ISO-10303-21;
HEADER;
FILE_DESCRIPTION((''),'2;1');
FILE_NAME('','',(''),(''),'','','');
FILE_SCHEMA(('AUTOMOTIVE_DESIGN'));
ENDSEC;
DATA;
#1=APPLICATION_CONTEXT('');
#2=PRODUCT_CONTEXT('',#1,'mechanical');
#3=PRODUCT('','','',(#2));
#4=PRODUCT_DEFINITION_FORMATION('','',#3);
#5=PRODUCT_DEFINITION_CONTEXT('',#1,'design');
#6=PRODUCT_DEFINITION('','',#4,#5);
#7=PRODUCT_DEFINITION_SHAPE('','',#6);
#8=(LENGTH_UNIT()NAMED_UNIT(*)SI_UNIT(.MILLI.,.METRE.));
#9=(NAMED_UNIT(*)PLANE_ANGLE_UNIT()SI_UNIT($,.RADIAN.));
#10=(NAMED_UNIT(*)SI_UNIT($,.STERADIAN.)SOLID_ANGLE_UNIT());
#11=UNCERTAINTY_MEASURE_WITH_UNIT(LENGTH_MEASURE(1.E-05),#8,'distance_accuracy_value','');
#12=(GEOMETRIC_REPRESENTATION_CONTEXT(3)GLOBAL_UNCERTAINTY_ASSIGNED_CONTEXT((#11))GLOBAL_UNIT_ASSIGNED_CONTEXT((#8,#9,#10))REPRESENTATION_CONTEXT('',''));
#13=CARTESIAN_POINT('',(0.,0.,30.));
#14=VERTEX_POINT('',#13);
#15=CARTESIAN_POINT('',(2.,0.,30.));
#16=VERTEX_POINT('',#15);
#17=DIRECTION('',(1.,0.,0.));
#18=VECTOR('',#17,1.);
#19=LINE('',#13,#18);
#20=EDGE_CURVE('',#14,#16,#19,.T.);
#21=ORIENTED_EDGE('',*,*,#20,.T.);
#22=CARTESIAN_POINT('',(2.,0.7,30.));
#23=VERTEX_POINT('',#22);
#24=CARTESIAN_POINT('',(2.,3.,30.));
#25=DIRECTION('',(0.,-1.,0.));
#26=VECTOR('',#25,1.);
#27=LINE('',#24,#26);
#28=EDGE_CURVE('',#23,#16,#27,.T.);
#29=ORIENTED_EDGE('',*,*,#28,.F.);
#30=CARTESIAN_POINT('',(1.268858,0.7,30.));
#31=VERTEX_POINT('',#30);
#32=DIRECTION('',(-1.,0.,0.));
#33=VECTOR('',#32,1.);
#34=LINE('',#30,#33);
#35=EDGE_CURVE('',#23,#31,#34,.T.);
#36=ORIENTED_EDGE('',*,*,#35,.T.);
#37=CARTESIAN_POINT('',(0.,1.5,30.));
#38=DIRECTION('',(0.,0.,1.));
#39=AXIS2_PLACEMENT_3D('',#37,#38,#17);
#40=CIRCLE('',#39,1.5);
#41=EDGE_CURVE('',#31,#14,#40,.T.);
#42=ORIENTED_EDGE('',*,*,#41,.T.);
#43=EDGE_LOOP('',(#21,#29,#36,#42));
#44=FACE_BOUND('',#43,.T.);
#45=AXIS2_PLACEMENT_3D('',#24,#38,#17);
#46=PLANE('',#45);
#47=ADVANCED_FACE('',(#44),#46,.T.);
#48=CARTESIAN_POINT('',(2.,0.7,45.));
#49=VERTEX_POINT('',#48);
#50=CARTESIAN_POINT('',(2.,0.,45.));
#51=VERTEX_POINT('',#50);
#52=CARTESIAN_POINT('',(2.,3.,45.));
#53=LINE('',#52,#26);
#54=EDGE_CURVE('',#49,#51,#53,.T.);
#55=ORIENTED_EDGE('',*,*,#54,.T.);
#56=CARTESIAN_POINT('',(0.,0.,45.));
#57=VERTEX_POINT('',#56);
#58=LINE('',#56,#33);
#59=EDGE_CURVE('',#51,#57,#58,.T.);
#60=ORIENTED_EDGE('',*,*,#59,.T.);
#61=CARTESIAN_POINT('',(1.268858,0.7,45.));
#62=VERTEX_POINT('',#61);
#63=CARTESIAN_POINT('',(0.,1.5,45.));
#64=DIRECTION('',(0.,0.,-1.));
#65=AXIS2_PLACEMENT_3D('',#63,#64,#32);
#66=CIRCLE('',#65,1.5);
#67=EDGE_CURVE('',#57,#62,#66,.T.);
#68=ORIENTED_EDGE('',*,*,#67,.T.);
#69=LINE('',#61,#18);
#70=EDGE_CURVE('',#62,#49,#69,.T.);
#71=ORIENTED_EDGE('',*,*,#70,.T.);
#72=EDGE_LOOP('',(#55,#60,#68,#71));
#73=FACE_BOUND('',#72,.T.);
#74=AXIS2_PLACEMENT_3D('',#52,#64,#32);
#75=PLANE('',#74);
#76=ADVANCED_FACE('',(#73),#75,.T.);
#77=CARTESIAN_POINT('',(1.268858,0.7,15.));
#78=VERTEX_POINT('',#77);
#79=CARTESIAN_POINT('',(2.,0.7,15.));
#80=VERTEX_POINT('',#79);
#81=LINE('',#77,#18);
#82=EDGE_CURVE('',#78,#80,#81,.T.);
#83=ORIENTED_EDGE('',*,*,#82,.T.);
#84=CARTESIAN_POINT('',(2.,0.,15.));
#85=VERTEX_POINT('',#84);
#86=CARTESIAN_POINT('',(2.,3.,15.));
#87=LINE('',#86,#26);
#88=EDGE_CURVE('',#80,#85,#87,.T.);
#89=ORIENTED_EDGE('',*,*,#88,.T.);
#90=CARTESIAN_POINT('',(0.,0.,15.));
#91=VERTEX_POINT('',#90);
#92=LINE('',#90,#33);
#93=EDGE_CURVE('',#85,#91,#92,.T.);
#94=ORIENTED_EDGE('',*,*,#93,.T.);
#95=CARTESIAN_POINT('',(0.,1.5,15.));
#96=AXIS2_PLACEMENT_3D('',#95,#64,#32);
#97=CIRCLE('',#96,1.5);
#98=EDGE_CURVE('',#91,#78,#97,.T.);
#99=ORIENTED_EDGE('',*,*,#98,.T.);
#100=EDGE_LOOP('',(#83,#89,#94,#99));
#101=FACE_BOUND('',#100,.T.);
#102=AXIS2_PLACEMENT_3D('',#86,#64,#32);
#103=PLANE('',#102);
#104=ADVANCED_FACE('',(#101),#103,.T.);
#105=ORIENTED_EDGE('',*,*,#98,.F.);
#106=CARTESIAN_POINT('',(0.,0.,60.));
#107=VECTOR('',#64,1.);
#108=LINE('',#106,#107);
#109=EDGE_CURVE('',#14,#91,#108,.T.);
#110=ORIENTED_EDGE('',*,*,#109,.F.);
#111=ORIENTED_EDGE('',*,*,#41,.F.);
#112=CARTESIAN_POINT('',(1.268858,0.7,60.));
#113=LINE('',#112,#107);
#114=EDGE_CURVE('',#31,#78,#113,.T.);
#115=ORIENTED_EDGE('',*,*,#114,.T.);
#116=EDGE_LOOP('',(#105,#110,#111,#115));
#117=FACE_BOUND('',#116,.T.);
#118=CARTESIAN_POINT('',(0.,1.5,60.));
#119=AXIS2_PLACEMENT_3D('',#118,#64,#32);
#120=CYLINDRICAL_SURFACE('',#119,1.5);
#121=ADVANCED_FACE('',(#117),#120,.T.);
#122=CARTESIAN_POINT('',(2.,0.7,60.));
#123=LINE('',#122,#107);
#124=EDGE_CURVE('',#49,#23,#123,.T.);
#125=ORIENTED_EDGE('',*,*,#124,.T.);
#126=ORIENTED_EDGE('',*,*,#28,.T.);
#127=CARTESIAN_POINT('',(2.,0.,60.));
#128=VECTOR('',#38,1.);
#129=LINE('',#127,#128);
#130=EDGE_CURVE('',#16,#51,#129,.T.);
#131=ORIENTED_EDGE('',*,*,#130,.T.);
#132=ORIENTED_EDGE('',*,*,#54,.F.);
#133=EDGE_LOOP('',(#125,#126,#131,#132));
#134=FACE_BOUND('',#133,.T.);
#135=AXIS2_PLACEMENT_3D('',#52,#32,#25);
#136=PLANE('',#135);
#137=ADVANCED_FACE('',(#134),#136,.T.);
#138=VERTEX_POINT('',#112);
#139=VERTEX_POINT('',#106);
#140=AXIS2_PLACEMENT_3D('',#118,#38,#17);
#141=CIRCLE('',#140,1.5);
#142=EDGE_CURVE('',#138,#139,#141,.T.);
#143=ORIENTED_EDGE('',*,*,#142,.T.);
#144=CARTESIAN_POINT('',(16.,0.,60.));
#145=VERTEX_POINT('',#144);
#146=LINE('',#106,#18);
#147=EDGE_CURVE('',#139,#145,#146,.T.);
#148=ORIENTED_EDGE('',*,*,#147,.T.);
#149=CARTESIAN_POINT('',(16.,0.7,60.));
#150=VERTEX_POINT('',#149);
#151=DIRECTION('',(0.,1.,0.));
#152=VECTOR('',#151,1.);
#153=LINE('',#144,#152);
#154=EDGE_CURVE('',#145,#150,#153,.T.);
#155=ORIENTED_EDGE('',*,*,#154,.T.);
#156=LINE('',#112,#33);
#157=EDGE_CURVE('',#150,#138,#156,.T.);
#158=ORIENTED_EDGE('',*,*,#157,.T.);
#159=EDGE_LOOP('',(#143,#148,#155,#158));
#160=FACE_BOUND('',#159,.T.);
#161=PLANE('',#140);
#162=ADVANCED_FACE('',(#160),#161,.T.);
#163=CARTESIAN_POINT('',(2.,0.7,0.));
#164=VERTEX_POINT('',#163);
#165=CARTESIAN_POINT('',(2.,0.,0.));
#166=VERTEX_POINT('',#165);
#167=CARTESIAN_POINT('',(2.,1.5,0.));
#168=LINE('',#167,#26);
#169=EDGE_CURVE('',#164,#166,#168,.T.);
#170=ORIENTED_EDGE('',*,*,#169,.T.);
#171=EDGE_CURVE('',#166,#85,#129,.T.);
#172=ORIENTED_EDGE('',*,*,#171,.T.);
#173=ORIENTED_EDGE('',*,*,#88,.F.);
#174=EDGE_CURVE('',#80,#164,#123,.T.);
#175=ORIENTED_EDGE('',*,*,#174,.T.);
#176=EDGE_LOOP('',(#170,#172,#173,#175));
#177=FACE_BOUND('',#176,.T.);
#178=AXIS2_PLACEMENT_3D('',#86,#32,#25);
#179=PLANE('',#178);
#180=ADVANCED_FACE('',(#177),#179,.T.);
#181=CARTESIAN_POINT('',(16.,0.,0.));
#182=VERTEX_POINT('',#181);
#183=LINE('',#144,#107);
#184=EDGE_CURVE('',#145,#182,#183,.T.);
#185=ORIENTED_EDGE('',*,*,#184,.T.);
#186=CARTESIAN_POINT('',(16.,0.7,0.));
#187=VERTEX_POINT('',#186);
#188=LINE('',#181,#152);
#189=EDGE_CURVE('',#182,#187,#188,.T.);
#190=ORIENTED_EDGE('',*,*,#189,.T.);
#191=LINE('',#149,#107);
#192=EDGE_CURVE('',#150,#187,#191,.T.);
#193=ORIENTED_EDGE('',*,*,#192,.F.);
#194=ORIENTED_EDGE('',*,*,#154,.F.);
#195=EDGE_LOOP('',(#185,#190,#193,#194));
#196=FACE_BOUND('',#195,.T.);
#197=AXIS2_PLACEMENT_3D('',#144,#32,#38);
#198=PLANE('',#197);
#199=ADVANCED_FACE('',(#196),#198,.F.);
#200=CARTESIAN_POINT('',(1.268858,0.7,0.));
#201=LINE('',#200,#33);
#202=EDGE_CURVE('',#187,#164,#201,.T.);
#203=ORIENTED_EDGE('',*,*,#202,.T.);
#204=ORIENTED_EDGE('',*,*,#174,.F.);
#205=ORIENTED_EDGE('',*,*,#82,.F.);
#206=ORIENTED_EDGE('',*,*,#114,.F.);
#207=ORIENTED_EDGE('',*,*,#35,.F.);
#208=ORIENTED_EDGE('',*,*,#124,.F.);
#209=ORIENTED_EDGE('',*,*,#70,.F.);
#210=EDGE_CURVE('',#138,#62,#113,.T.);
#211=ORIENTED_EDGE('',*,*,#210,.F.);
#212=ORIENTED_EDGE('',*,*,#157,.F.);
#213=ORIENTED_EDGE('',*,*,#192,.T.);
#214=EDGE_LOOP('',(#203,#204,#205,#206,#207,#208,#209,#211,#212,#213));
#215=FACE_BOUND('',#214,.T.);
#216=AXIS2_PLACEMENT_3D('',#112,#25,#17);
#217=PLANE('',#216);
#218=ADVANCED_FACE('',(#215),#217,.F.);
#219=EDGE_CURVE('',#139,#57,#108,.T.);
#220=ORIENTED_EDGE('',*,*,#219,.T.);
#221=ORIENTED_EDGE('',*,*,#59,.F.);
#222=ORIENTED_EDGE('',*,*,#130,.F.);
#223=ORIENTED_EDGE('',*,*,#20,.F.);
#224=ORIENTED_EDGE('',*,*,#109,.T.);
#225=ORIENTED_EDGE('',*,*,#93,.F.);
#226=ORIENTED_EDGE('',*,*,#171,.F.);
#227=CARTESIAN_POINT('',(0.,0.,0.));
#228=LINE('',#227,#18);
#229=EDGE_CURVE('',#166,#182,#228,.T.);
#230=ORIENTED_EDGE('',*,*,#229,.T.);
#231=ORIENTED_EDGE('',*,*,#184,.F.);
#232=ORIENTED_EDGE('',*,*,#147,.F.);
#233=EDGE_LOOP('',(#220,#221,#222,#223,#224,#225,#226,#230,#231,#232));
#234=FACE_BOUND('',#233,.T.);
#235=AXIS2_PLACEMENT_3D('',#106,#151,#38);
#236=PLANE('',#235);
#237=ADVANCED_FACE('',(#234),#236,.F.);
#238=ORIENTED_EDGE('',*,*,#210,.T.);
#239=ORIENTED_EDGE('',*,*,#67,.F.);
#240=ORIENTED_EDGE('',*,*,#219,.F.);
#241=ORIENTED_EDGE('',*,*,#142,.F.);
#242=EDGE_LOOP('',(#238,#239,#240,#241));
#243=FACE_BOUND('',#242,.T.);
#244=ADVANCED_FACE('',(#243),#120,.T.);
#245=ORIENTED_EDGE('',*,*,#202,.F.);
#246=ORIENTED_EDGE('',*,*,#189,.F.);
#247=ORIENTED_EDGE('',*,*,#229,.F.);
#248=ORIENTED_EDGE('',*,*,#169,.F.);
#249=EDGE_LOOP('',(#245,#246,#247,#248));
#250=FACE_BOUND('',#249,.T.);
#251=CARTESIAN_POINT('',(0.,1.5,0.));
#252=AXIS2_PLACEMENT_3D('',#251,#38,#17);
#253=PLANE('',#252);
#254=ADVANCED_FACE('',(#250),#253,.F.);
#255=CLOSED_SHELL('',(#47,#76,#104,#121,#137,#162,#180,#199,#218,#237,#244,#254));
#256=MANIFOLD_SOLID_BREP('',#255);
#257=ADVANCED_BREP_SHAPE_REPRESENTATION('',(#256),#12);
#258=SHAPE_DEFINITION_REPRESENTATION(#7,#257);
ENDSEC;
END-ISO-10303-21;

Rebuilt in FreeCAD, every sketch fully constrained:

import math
import FreeCAD as App
import Part
import Sketcher

V = App.Vector
Q = App.Units.Quantity

doc = App.newDocument("Part")
body = doc.addObject("PartDesign::Body", "Body")

# Sketch on XY plane
sketch1 = body.newObject("Sketcher::SketchObject", "Sketch")
sketch1.AttachmentSupport = (doc.getObject("XY_Plane"), [""])
sketch1.MapMode = "FlatFace"
sketch1.addGeometry([
    Part.LineSegment(V(0, 0, 0), V(16, 0, 0)),
    Part.LineSegment(V(16, 0, 0), V(16, 0.7, 0)),
    Part.LineSegment(V(16, 0.7, 0), V(1.268858, 0.7, 0)),
    Part.ArcOfCircle(Part.Circle(V(0, 1.5, 0), V(0, 0, 1), 1.5), math.radians(-32.230953), math.radians(270)),
], False)
sketch1.addConstraint([
    Sketcher.Constraint("Coincident", 0, 2, 1, 1),
    Sketcher.Constraint("Coincident", 1, 2, 2, 1),
    Sketcher.Constraint("Coincident", 2, 2, 3, 1),
    Sketcher.Constraint("Tangent", 3, 2, 0, 1),
    Sketcher.Constraint("Horizontal", 0),
    Sketcher.Constraint("Vertical", 1),
    Sketcher.Constraint("Horizontal", 2),
    Sketcher.Constraint("Coincident", 3, 2, -1, 1),
    Sketcher.Constraint("Radius", 3, Q("1.5 mm")),
    Sketcher.Constraint("DistanceX", 0, 1, 0, 2, Q("16 mm")),
    Sketcher.Constraint("DistanceY", 1, 1, 1, 2, Q("0.7 mm")),
])
pad1 = body.newObject("PartDesign::Pad", "Pad")
pad1.Profile = sketch1
pad1.Length = 60

# Sketch on XZ plane
sketch2 = body.newObject("Sketcher::SketchObject", "Sketch001")
sketch2.AttachmentSupport = (doc.getObject("XZ_Plane"), [""])
sketch2.MapMode = "FlatFace"
sketch2.AttachmentOffset = App.Placement(V(0, 0, 9.3), App.Rotation())
sketch2.addGeometry([
    Part.LineSegment(V(-5.046962, 30, 0), V(-5.046962, 45, 0)),
    Part.LineSegment(V(-5.046962, 45, 0), V(2, 45, 0)),
    Part.LineSegment(V(2, 45, 0), V(2, 30, 0)),
    Part.LineSegment(V(2, 30, 0), V(-5.046962, 30, 0)),
], False)
sketch2.addConstraint([
    Sketcher.Constraint("Coincident", 0, 2, 1, 1),
    Sketcher.Constraint("Coincident", 1, 2, 2, 1),
    Sketcher.Constraint("Coincident", 2, 2, 3, 1),
    Sketcher.Constraint("Coincident", 3, 2, 0, 1),
    Sketcher.Constraint("Vertical", 0),
    Sketcher.Constraint("Horizontal", 1),
    Sketcher.Constraint("Vertical", 2),
    Sketcher.Constraint("Horizontal", 3),
    Sketcher.Constraint("DistanceY", 0, 1, 0, 2, Q("15 mm")),
    Sketcher.Constraint("DistanceY", -1, 1, 0, 2, Q("45 mm")),
    Sketcher.Constraint("DistanceX", -1, 1, 1, 2, Q("2 mm")),
    Sketcher.Constraint("DistanceX", 1, 1, 1, 2, Q("7.046962 mm")),
])
pocket1 = body.newObject("PartDesign::Pocket", "Pocket")
pocket1.Profile = sketch2
pocket1.Type = "ThroughAll"
doc.recompute()

linearpattern = body.newObject("PartDesign::LinearPattern", "LinearPattern")
linearpattern.Originals = [pocket1]
linearpattern.Direction = (doc.getObject("Z_Axis"), [""])
linearpattern.Mode = "offset"
linearpattern.Offset = 30
linearpattern.Occurrences = 2
linearpattern.Reversed = True
body.Tip = linearpattern

doc.recompute()
